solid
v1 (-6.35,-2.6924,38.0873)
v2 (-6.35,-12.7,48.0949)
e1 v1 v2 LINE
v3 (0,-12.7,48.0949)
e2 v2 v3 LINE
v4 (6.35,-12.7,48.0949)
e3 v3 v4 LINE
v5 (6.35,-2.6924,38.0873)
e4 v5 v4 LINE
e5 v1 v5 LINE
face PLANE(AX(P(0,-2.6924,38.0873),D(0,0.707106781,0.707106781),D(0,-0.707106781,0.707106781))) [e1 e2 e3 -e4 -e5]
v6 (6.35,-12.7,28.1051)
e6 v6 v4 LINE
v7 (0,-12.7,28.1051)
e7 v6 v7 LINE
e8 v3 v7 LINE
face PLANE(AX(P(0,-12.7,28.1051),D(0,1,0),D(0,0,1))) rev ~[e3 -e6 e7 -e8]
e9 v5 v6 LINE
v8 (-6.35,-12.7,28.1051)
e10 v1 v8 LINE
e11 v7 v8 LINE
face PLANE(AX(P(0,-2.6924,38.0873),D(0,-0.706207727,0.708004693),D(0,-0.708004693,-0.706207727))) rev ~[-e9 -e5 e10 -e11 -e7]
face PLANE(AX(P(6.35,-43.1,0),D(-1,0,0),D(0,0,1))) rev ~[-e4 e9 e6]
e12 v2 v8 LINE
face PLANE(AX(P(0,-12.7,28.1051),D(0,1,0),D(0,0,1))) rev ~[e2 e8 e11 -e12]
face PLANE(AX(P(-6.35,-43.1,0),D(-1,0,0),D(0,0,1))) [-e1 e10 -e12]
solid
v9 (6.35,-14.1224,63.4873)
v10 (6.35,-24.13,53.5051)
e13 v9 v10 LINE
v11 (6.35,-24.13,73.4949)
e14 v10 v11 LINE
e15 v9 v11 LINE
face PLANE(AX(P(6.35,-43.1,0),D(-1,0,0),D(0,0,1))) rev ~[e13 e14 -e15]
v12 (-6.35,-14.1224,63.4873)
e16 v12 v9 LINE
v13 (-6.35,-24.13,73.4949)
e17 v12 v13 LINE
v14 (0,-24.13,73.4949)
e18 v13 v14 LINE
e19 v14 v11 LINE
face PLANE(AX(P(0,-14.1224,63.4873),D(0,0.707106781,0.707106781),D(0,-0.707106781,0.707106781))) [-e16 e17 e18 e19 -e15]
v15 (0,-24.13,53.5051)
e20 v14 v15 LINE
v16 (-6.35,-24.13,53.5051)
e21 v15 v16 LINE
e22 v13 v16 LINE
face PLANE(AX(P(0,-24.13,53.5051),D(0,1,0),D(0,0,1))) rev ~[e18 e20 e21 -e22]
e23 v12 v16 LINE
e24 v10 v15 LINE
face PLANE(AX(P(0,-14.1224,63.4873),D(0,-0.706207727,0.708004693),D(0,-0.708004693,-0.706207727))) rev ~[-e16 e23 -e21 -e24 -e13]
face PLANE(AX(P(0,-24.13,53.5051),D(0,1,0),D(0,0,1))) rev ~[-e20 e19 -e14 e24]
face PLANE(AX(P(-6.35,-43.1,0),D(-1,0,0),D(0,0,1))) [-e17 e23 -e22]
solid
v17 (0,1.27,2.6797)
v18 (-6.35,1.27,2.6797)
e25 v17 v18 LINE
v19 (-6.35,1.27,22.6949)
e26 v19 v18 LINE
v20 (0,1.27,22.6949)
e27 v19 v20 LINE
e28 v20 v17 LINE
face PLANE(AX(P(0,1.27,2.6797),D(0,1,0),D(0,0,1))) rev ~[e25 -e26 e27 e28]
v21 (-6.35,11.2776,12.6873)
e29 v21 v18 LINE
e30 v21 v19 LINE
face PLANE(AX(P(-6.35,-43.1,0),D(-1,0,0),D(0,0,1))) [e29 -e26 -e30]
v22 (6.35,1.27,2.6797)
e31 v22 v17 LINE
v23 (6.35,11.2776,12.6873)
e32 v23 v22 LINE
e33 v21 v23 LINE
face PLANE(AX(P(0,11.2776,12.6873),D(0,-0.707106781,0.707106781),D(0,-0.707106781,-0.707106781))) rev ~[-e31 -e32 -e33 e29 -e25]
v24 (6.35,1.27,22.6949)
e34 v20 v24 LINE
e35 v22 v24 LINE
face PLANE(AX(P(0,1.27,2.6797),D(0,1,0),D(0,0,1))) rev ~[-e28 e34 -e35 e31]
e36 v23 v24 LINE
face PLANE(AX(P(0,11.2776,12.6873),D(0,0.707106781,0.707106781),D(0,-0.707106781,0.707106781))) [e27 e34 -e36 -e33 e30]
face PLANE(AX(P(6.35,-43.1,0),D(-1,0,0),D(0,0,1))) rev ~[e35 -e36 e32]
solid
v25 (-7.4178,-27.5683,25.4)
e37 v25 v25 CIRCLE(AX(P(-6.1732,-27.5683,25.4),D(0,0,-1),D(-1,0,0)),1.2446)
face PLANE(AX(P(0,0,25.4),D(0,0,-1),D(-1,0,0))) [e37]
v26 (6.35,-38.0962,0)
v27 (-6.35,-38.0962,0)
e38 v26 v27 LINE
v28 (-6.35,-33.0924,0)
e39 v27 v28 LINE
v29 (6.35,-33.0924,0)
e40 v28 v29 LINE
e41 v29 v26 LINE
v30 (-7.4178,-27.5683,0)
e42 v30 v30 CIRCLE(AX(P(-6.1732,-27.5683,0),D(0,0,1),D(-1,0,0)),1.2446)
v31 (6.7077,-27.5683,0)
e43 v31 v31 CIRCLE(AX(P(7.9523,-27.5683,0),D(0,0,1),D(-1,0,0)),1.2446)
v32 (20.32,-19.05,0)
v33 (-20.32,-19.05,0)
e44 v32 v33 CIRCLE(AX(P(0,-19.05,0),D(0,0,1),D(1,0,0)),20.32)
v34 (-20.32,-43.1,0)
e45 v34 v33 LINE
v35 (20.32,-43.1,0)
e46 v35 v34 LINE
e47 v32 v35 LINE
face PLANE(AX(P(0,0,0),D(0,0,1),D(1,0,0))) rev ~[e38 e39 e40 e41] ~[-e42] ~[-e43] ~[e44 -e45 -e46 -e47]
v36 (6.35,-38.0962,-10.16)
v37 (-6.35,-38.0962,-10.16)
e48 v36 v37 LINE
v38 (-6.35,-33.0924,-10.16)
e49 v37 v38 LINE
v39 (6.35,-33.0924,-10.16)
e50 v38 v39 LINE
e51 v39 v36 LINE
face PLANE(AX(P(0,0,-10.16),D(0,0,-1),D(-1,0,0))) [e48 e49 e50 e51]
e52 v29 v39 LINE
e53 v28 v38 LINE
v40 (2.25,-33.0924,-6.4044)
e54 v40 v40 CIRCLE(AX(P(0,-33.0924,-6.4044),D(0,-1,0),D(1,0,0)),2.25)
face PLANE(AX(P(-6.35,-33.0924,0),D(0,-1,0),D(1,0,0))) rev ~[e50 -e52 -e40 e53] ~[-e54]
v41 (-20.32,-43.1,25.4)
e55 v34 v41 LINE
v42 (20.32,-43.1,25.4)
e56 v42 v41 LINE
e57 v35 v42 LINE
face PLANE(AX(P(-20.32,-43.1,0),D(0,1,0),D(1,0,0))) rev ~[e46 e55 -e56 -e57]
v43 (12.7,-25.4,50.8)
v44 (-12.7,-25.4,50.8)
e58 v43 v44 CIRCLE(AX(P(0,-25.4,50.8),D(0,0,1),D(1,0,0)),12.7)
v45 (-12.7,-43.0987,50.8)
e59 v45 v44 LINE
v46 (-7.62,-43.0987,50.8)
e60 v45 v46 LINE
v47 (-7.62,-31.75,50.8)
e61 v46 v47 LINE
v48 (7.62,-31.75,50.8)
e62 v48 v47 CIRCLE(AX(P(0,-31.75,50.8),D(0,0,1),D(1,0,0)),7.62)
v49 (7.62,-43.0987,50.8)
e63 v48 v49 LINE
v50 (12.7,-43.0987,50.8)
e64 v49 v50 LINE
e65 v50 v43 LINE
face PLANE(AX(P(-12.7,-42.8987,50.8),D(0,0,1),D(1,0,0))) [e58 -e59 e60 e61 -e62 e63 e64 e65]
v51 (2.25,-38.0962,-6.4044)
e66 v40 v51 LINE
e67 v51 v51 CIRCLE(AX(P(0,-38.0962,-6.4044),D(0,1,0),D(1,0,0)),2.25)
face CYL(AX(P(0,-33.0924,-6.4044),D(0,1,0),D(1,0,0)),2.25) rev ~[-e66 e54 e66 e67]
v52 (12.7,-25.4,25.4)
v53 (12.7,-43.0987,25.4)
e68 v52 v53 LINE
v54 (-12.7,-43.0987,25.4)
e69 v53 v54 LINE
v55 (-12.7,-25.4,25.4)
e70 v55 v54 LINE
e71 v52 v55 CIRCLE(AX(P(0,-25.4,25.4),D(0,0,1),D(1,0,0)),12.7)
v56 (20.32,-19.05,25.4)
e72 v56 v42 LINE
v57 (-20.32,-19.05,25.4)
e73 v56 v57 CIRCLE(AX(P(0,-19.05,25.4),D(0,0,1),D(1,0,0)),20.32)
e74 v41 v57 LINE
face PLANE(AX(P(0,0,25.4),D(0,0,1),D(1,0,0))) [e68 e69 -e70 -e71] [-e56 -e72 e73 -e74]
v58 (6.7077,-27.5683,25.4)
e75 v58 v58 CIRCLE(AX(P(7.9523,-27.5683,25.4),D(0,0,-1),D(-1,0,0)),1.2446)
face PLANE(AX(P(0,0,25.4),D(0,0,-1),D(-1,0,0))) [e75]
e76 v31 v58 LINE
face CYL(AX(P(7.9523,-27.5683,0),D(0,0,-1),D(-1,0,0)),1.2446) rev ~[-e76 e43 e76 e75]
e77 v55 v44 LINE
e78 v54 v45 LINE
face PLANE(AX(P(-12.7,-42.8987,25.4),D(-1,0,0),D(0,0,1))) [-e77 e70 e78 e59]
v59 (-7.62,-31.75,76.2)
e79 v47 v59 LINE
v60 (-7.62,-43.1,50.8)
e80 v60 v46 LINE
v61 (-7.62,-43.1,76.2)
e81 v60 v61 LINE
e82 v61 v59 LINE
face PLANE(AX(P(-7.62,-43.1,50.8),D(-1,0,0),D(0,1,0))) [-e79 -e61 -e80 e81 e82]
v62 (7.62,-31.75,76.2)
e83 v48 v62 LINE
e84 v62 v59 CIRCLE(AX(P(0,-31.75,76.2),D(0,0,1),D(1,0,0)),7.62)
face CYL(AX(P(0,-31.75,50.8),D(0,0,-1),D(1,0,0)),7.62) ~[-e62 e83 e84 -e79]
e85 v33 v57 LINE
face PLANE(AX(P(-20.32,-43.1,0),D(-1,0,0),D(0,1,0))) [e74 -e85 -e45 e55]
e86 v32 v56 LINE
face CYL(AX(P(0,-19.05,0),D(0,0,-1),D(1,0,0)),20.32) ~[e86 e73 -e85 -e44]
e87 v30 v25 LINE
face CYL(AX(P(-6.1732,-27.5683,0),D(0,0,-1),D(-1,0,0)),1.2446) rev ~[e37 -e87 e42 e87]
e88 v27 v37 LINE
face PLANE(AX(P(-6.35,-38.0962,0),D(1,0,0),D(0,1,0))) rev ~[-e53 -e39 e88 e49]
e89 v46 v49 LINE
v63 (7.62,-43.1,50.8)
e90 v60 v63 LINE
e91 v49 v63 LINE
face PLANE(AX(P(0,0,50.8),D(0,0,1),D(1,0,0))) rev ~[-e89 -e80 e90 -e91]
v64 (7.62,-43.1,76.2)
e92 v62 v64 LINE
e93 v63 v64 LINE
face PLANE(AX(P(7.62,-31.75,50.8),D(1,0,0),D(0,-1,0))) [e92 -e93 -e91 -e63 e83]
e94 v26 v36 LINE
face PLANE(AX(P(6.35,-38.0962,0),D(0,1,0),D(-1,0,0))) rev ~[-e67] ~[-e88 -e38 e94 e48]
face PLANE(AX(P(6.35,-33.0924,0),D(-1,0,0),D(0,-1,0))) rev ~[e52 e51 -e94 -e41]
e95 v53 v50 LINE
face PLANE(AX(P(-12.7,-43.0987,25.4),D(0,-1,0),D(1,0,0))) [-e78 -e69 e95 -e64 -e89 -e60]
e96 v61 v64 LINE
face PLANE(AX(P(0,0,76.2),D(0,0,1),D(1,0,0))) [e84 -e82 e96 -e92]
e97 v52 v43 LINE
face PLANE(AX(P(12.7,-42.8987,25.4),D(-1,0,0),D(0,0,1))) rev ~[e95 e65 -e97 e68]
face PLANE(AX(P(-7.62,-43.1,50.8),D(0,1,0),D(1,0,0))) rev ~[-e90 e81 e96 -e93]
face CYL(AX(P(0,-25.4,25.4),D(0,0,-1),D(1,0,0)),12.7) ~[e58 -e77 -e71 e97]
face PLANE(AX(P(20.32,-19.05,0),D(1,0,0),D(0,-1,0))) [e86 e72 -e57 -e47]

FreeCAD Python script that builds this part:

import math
import FreeCAD as App
import Part
import Sketcher
Q = App.Units.Quantity

doc = App.newDocument("Part")
body = doc.addObject("PartDesign::Body", "Body")
body.AllowCompound = True

sketch1 = body.newObject("Sketcher::SketchObject", "Sketch")
sketch1.AttachmentSupport = (doc.getObject("XY_Plane"), [""])
sketch1.MapMode = "FlatFace"
sketch1.addGeometry([
    Part.LineSegment(App.Vector(-20.32, -43.1, 0), App.Vector(20.32, -43.1, 0)),
    Part.LineSegment(App.Vector(20.32, -43.1, 0), App.Vector(20.32, -19.05, 0)),
    Part.ArcOfCircle(Part.Circle(App.Vector(0, -19.05, 0), App.Vector(0, 0, 1), 20.32), math.radians(0), math.radians(180)),
    Part.LineSegment(App.Vector(-20.32, -19.05, 0), App.Vector(-20.32, -43.1, 0)),
], False)
sketch1.addConstraint([
    Sketcher.Constraint("Coincident", 0, 2, 1, 1),
    Sketcher.Constraint("Tangent", 1, 2, 2, 1),
    Sketcher.Constraint("Tangent", 2, 2, 3, 1),
    Sketcher.Constraint("Coincident", 3, 2, 0, 1),
    Sketcher.Constraint("Horizontal", 0),
    Sketcher.Constraint("Vertical", 1),
    Sketcher.Constraint("Vertical", 3),
    Sketcher.Constraint("PointOnObject", 2, 3, -2),
    Sketcher.Constraint("Radius", 2, Q("0.8 in")),
    Sketcher.Constraint("DistanceY", 2, 3, -1, 1, Q("0.75 in")),
    Sketcher.Constraint("DistanceY", 1, 1, 1, 2, Q("24.05 mm")),
])
pad1 = body.newObject("PartDesign::Pad", "Pad")
pad1.Profile = sketch1
pad1.Length = Q("1 in")

sketch2 = body.newObject("Sketcher::SketchObject", "Sketch001")
sketch2.AttachmentSupport = (doc.getObject("XY_Plane"), [""])
sketch2.MapMode = "FlatFace"
sketch2.addGeometry([
    Part.LineSegment(App.Vector(6.35, -38.0962, 0), App.Vector(-6.35, -38.0962, 0)),
    Part.LineSegment(App.Vector(-6.35, -38.0962, 0), App.Vector(-6.35, -33.0924, 0)),
    Part.LineSegment(App.Vector(-6.35, -33.0924, 0), App.Vector(6.35, -33.0924, 0)),
    Part.LineSegment(App.Vector(6.35, -33.0924, 0), App.Vector(6.35, -38.0962, 0)),
], False)
sketch2.addConstraint([
    Sketcher.Constraint("Coincident", 0, 2, 1, 1),
    Sketcher.Constraint("Coincident", 1, 2, 2, 1),
    Sketcher.Constraint("Coincident", 2, 2, 3, 1),
    Sketcher.Constraint("Coincident", 3, 2, 0, 1),
    Sketcher.Constraint("Horizontal", 0),
    Sketcher.Constraint("Vertical", 1),
    Sketcher.Constraint("Horizontal", 2),
    Sketcher.Constraint("Vertical", 3),
    Sketcher.Constraint("DistanceY", 1, 1, 1, 2, Q("0.197 in")),
    Sketcher.Constraint("DistanceX", 0, 2, 0, 1, Q("0.5 in")),
    Sketcher.Constraint("DistanceX", 0, 2, -1, 1, Q("0.25 in")),
    Sketcher.Constraint("DistanceY", 0, 2, -1, 1, Q("38.0962 mm")),
])
pad2 = body.newObject("PartDesign::Pad", "Pad001")
pad2.Profile = sketch2
pad2.Length = Q("0.4 in")
pad2.Reversed = True

sketch3 = body.newObject("Sketcher::SketchObject", "Sketch002")
sketch3.AttachmentSupport = (doc.getObject("XZ_Plane"), [""])
sketch3.MapMode = "FlatFace"
sketch3.AttachmentOffset = App.Placement(App.Vector(0, 0, 33.0924), App.Rotation())
sketch3.addGeometry(Part.Circle(App.Vector(0, -6.4044, 0), App.Vector(0, 0, 1), 2.25), False)
sketch3.addConstraint([
    Sketcher.Constraint("PointOnObject", 0, 3, -2),
    Sketcher.Constraint("Diameter", 0, Q("4.5 mm")),
    Sketcher.Constraint("DistanceY", 0, 3, -1, 1, Q("6.4044 mm")),
])
pocket1 = body.newObject("PartDesign::Pocket", "Pocket")
pocket1.Profile = sketch3
pocket1.Length = Q("0.4 in")
pocket1.Reversed = True

sketch4 = body.newObject("Sketcher::SketchObject", "Sketch003")
sketch4.AttachmentSupport = (doc.getObject("XY_Plane"), [""])
sketch4.MapMode = "FlatFace"
sketch4.AttachmentOffset = App.Placement(App.Vector(0, 0, 1 * 25.4), App.Rotation())
sketch4.addGeometry([
    Part.ArcOfCircle(Part.Circle(App.Vector(0, -25.4, 0), App.Vector(0, 0, 1), 12.7), math.radians(0), math.radians(180)),
    Part.LineSegment(App.Vector(-12.7, -25.4, 0), App.Vector(-12.7, -42.8987, 0)),
    Part.LineSegment(App.Vector(-12.7, -42.8987, 0), App.Vector(12.7, -42.8987, 0)),
    Part.LineSegment(App.Vector(12.7, -42.8987, 0), App.Vector(12.7, -25.4, 0)),
], False)
sketch4.addConstraint([
    Sketcher.Constraint("Tangent", 0, 2, 1, 1),
    Sketcher.Constraint("Coincident", 1, 2, 2, 1),
    Sketcher.Constraint("Coincident", 2, 2, 3, 1),
    Sketcher.Constraint("Tangent", 3, 2, 0, 1),
    Sketcher.Constraint("Vertical", 1),
    Sketcher.Constraint("Horizontal", 2),
    Sketcher.Constraint("Vertical", 3),
    Sketcher.Constraint("PointOnObject", 0, 3, -2),
    Sketcher.Constraint("Radius", 0, Q("0.5 in")),
    Sketcher.Constraint("DistanceY", 0, 3, -1, 1, Q("1 in")),
    Sketcher.Constraint("DistanceY", 1, 2, 1, 1, Q("17.4987 mm")),
])
pad3 = body.newObject("PartDesign::Pad", "Pad002")
pad3.Profile = sketch4
pad3.Length = Q("1 in")

sketch5 = body.newObject("Sketcher::SketchObject", "Sketch004")
sketch5.AttachmentSupport = (doc.getObject("XY_Plane"), [""])
sketch5.MapMode = "FlatFace"
sketch5.AttachmentOffset = App.Placement(App.Vector(0, 0, 2 * 25.4), App.Rotation())
sketch5.addGeometry([
    Part.ArcOfCircle(Part.Circle(App.Vector(0, -31.75, 0), App.Vector(0, 0, 1), 7.62), math.radians(0), math.radians(180)),
    Part.LineSegment(App.Vector(-7.62, -31.75, 0), App.Vector(-7.62, -43.1, 0)),
    Part.LineSegment(App.Vector(-7.62, -43.1, 0), App.Vector(7.62, -43.1, 0)),
    Part.LineSegment(App.Vector(7.62, -43.1, 0), App.Vector(7.62, -31.75, 0)),
], False)
sketch5.addConstraint([
    Sketcher.Constraint("Tangent", 0, 2, 1, 1),
    Sketcher.Constraint("Coincident", 1, 2, 2, 1),
    Sketcher.Constraint("Coincident", 2, 2, 3, 1),
    Sketcher.Constraint("Tangent", 3, 2, 0, 1),
    Sketcher.Constraint("Vertical", 1),
    Sketcher.Constraint("Horizontal", 2),
    Sketcher.Constraint("Vertical", 3),
    Sketcher.Constraint("PointOnObject", 0, 3, -2),
    Sketcher.Constraint("Radius", 0, Q("0.3 in")),
    Sketcher.Constraint("DistanceY", 0, 3, -1, 1, Q("1.25 in")),
    Sketcher.Constraint("DistanceY", 1, 2, 1, 1, Q("11.35 mm")),
])
pad4 = body.newObject("PartDesign::Pad", "Pad003")
pad4.Profile = sketch5
pad4.Length = Q("1 in")

sketch6 = body.newObject("Sketcher::SketchObject", "Sketch005")
sketch6.AttachmentSupport = (doc.getObject("YZ_Plane"), [""])
sketch6.MapMode = "FlatFace"
sketch6.addGeometry([
    Part.LineSegment(App.Vector(11.2776, 12.6873, 0), App.Vector(1.27, 2.6797, 0)),
    Part.LineSegment(App.Vector(1.27, 2.6797, 0), App.Vector(1.27, 22.6949, 0)),
    Part.LineSegment(App.Vector(1.27, 22.6949, 0), App.Vector(11.2776, 12.6873, 0)),
], False)
sketch6.addConstraint([
    Sketcher.Constraint("Coincident", 0, 2, 1, 1),
    Sketcher.Constraint("Coincident", 1, 2, 2, 1),
    Sketcher.Constraint("Coincident", 2, 2, 0, 1),
    Sketcher.Constraint("Vertical", 1),
    Sketcher.Constraint("Perpendicular", 0, 2),
    Sketcher.Constraint("Equal", 0, 2),
    Sketcher.Constraint("DistanceX", 0, 2, 2, 2, Q("0.394 in")),
    Sketcher.Constraint("DistanceX", -1, 1, 0, 2, Q("0.05 in")),
    Sketcher.Constraint("DistanceY", -1, 1, 0, 2, Q("0.1055 in")),
])
pad5 = body.newObject("PartDesign::Pad", "Pad004")
pad5.Profile = sketch6
pad5.Length = Q("0.5 in")
pad5.Midplane = True

sketch7 = body.newObject("Sketcher::SketchObject", "Sketch006")
sketch7.AttachmentSupport = (doc.getObject("YZ_Plane"), [""])
sketch7.MapMode = "FlatFace"
sketch7.addGeometry([
    Part.LineSegment(App.Vector(-2.6924, 38.0873, 0), App.Vector(-12.7, 28.1051, 0)),
    Part.LineSegment(App.Vector(-12.7, 28.1051, 0), App.Vector(-12.7, 48.0949, 0)),
    Part.LineSegment(App.Vector(-12.7, 48.0949, 0), App.Vector(-2.6924, 38.0873, 0)),
], False)
sketch7.addConstraint([
    Sketcher.Constraint("Coincident", 0, 2, 1, 1),
    Sketcher.Constraint("Coincident", 1, 2, 2, 1),
    Sketcher.Constraint("Coincident", 2, 2, 0, 1),
    Sketcher.Constraint("Vertical", 1),
    Sketcher.Constraint("DistanceY", 1, 1, 1, 2, Q("0.787 in")),
    Sketcher.Constraint("Angle", 2, Q("-45 deg")),
    Sketcher.Constraint("DistanceX", 0, 2, 2, 2, Q("0.394 in")),
    Sketcher.Constraint("DistanceX", 0, 2, -1, 1, Q("0.5 in")),
    Sketcher.Constraint("DistanceY", -1, 1, 0, 2, Q("1.1065 in")),
])
pad6 = body.newObject("PartDesign::Pad", "Pad005")
pad6.Profile = sketch7
pad6.Length = Q("0.5 in")
pad6.Midplane = True

sketch8 = body.newObject("Sketcher::SketchObject", "Sketch007")
sketch8.AttachmentSupport = (doc.getObject("YZ_Plane"), [""])
sketch8.MapMode = "FlatFace"
sketch8.addGeometry([
    Part.LineSegment(App.Vector(-14.1224, 63.4873, 0), App.Vector(-24.13, 53.5051, 0)),
    Part.LineSegment(App.Vector(-24.13, 53.5051, 0), App.Vector(-24.13, 73.4949, 0)),
    Part.LineSegment(App.Vector(-24.13, 73.4949, 0), App.Vector(-14.1224, 63.4873, 0)),
], False)
sketch8.addConstraint([
    Sketcher.Constraint("Coincident", 0, 2, 1, 1),
    Sketcher.Constraint("Coincident", 1, 2, 2, 1),
    Sketcher.Constraint("Coincident", 2, 2, 0, 1),
    Sketcher.Constraint("Vertical", 1),
    Sketcher.Constraint("DistanceY", 1, 1, 1, 2, Q("0.787 in")),
    Sketcher.Constraint("Angle", 2, Q("-45 deg")),
    Sketcher.Constraint("DistanceX", 0, 2, 2, 2, Q("0.394 in")),
    Sketcher.Constraint("DistanceX", 0, 2, -1, 1, Q("0.95 in")),
    Sketcher.Constraint("DistanceY", -1, 1, 0, 2, Q("2.1065 in")),
])
pad7 = body.newObject("PartDesign::Pad", "Pad006")
pad7.Profile = sketch8
pad7.Length = Q("0.5 in")
pad7.Midplane = True

sketch9 = body.newObject("Sketcher::SketchObject", "Sketch008")
sketch9.AttachmentSupport = (doc.getObject("XZ_Plane"), [""])
sketch9.MapMode = "FlatFace"
sketch9.AttachmentOffset = App.Placement(App.Vector(0, 0, 42.8987), App.Rotation())
sketch9.addGeometry([
    Part.LineSegment(App.Vector(-12.7, 25.4, 0), App.Vector(12.7, 25.4, 0)),
    Part.LineSegment(App.Vector(12.7, 25.4, 0), App.Vector(12.7, 50.8, 0)),
    Part.LineSegment(App.Vector(12.7, 50.8, 0), App.Vector(-12.7, 50.8, 0)),
    Part.LineSegment(App.Vector(-12.7, 50.8, 0), App.Vector(-12.7, 25.4, 0)),
], False)
sketch9.addConstraint([
    Sketcher.Constraint("Coincident", 0, 2, 1, 1),
    Sketcher.Constraint("Coincident", 1, 2, 2, 1),
    Sketcher.Constraint("Coincident", 2, 2, 3, 1),
    Sketcher.Constraint("Coincident", 3, 2, 0, 1),
    Sketcher.Constraint("Horizontal", 0),
    Sketcher.Constraint("Vertical", 1),
    Sketcher.Constraint("Horizontal", 2),
    Sketcher.Constraint("Vertical", 3),
    Sketcher.Constraint("Equal", 2, 1),
    Sketcher.Constraint("DistanceX", 0, 1, 0, 2, Q("1 in")),
    Sketcher.Constraint("DistanceY", -1, 1, 0, 2, Q("1 in")),
    Sketcher.Constraint("DistanceX", -1, 1, 0, 2, Q("0.5 in")),
])
pad8 = body.newObject("PartDesign::Pad", "Pad007")
pad8.Profile = sketch9
pad8.Length = 0.2

sketch10 = body.newObject("Sketcher::SketchObject", "Sketch009")
sketch10.AttachmentSupport = (doc.getObject("XY_Plane"), [""])
sketch10.MapMode = "FlatFace"
sketch10.addGeometry([
    Part.Circle(App.Vector(7.9523, -27.5683, 0), App.Vector(0, 0, 1), 1.2446),
    Part.Circle(App.Vector(-6.1732, -27.5683, 0), App.Vector(0, 0, 1), 1.2446),
], False)
sketch10.addConstraint([
    Sketcher.Constraint("Equal", 0, 1),
    Sketcher.Constraint("Horizontal", 0, 3, 1, 3),
    Sketcher.Constraint("Diameter", 0, Q("0.098 in")),
    Sketcher.Constraint("DistanceX", -1, 1, 0, 3, Q("7.9523 mm")),
    Sketcher.Constraint("DistanceY", 0, 3, -1, 1, Q("27.5683 mm")),
    Sketcher.Constraint("DistanceX", 1, 3, -1, 1, Q("6.1732 mm")),
])
pocket2 = body.newObject("PartDesign::Pocket", "Pocket001")
pocket2.Profile = sketch10
pocket2.Length = Q("1 in")
pocket2.Reversed = True

doc.recompute()
